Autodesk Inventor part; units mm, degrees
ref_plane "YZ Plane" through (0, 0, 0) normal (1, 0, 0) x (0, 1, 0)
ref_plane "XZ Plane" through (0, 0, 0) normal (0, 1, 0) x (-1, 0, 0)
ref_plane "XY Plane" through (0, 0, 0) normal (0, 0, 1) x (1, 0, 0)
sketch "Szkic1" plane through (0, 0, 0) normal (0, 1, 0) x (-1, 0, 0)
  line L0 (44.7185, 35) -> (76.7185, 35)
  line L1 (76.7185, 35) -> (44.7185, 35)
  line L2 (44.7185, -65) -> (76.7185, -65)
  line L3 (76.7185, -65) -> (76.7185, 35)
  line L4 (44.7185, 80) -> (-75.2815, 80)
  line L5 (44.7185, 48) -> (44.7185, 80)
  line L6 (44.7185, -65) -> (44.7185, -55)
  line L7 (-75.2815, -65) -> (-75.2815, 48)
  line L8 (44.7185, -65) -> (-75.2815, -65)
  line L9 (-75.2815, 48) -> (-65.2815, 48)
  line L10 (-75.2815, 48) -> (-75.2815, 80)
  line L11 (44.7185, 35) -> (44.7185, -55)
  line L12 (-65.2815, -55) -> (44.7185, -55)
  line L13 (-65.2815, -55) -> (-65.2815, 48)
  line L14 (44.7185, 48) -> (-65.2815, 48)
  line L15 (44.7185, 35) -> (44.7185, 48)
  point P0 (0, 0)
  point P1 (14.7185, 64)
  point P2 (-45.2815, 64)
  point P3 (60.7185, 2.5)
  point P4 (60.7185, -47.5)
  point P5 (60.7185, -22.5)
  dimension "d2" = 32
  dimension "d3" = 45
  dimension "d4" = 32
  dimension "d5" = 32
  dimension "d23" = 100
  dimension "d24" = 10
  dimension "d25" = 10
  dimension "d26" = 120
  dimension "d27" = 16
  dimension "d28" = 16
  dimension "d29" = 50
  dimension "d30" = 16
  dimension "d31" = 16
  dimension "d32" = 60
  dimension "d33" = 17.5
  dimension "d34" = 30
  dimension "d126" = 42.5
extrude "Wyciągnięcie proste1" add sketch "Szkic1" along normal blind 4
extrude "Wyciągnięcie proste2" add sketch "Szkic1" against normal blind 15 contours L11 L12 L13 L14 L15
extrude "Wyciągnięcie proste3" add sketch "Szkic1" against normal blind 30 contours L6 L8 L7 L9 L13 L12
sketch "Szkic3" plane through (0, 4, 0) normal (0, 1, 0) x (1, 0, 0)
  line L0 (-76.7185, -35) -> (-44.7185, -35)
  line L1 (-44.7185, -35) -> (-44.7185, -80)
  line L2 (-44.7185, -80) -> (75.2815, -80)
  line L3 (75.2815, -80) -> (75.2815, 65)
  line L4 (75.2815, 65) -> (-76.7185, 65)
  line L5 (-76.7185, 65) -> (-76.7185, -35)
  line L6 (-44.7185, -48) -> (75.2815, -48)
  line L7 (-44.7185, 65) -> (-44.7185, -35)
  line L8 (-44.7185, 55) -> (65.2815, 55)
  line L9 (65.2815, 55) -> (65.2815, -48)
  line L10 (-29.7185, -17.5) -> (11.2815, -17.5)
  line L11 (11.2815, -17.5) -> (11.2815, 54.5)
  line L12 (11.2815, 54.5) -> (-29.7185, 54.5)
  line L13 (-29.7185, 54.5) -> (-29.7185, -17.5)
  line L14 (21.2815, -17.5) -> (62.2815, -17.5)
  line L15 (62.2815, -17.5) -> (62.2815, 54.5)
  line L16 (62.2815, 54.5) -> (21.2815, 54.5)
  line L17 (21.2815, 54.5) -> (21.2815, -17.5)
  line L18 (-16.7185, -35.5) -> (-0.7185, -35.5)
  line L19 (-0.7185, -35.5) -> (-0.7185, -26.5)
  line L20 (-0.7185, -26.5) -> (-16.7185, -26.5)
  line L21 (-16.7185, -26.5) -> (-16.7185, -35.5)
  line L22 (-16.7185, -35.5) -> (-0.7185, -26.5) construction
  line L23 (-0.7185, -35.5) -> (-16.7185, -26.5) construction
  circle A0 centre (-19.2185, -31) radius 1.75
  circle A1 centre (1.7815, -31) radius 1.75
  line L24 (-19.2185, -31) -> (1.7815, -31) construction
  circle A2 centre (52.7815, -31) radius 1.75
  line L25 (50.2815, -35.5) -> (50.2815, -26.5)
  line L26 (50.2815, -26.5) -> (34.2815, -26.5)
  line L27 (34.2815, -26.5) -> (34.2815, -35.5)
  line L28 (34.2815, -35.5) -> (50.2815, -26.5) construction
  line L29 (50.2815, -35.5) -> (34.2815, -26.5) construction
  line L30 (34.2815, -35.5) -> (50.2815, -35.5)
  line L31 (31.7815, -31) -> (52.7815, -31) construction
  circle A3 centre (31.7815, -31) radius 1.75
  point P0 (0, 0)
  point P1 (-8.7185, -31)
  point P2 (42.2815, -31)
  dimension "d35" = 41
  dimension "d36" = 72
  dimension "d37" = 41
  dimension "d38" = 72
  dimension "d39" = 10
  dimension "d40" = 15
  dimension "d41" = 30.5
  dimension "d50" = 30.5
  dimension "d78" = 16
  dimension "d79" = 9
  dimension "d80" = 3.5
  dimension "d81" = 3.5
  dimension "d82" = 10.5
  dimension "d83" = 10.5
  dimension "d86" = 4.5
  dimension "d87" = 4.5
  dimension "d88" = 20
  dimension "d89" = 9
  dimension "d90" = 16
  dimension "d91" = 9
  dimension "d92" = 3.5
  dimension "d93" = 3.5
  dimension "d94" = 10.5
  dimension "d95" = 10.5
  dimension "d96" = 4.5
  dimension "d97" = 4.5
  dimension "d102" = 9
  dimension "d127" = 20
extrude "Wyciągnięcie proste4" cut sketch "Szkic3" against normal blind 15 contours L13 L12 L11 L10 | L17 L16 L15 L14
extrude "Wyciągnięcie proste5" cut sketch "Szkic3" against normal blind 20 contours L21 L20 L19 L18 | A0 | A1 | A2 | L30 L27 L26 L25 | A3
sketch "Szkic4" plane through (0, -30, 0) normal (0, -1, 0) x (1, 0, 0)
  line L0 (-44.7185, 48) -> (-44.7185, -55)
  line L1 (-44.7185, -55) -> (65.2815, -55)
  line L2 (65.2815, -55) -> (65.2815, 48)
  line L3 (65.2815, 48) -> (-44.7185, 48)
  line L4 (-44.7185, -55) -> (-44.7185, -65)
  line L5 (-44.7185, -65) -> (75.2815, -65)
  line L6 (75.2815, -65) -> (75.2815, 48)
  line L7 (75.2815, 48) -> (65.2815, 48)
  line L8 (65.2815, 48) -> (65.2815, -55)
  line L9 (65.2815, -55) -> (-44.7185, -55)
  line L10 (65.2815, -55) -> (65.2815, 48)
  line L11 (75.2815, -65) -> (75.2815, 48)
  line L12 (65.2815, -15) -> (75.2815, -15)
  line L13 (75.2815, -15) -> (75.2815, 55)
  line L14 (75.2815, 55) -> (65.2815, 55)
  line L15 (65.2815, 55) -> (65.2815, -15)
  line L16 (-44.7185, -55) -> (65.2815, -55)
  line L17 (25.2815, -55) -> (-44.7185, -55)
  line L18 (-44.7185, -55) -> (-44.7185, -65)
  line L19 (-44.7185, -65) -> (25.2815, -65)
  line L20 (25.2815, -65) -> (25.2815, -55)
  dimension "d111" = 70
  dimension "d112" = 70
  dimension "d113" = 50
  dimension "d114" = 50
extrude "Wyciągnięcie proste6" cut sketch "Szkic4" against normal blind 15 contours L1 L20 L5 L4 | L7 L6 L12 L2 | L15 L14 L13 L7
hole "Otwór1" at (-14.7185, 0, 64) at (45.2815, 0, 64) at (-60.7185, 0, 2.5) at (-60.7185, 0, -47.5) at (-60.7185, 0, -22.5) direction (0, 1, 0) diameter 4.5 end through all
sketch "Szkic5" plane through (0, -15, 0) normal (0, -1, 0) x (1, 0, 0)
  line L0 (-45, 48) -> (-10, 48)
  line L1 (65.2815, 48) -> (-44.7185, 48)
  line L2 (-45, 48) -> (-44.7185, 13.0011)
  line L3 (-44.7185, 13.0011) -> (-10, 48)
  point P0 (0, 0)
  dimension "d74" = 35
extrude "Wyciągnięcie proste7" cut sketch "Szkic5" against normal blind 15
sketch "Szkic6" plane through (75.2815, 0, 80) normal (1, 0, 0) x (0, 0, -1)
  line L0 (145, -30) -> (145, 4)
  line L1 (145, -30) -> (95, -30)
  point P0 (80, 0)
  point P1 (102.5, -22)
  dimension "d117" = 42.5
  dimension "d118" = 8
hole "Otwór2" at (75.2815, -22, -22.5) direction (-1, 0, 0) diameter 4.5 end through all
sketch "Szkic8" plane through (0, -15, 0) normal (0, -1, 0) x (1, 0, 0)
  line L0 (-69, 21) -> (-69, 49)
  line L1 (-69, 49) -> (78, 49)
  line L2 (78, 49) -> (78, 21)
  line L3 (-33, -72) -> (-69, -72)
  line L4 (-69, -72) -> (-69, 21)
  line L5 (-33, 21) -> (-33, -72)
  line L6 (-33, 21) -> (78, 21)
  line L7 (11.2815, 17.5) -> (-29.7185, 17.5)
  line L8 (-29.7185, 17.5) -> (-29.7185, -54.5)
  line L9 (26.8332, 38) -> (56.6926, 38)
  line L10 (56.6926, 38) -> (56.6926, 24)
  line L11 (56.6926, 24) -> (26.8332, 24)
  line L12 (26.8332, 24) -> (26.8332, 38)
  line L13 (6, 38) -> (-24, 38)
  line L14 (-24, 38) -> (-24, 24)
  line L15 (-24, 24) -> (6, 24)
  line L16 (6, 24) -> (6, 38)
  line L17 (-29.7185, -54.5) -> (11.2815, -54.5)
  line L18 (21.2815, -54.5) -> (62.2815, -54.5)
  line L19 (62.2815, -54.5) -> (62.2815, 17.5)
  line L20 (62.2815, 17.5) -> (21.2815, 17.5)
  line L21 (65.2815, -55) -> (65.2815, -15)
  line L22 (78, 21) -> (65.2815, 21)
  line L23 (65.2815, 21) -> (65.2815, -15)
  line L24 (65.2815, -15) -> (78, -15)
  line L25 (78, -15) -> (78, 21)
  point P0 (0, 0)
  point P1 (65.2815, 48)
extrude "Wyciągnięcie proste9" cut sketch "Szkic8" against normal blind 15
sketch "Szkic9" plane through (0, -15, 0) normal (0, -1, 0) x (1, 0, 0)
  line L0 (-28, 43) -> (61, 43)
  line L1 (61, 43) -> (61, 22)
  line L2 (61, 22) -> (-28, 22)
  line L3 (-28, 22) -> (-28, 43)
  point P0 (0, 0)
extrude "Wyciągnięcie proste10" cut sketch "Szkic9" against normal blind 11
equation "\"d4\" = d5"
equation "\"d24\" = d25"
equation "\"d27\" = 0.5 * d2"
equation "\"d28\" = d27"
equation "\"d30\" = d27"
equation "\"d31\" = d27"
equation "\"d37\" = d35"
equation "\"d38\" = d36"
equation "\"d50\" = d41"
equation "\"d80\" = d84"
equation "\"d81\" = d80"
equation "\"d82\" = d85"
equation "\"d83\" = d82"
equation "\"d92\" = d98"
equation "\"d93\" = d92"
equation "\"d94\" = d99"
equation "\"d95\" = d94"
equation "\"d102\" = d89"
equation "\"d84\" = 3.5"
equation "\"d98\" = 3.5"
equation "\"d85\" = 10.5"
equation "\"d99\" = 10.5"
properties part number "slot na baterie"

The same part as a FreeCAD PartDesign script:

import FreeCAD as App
import Part
import Sketcher
Q = App.Units.Quantity


def add_polygon(sketch, points):
    """Adds a closed chain of lines whose ends are joined by coincident constraints."""
    first, n = sketch.GeometryCount, len(points)
    for a, b in zip(points, points[1:] + points[:1]):
        sketch.addGeometry(Part.LineSegment(App.Vector(*a, 0), App.Vector(*b, 0)), False)
    for i in range(n):
        sketch.addConstraint(Sketcher.Constraint("Coincident", first + i, 2, first + (i + 1) % n, 1))

doc = App.newDocument("Part")
body = doc.addObject("PartDesign::Body", "Body")

# Sketch on XZ plane
sketch1 = body.newObject("Sketcher::SketchObject", "Sketch")
sketch1.AttachmentSupport = (doc.getObject("XZ_Plane"), [""])
sketch1.MapMode = "FlatFace"
add_polygon(sketch1, [(-77, 35), (-45, 35), (-45, 80), (75, 80), (75, -65), (-77, -65)])  # lines 0-5
sketch1.addConstraint(Sketcher.Constraint("Horizontal", 0))
sketch1.addConstraint(Sketcher.Constraint("Vertical", 1))
sketch1.addConstraint(Sketcher.Constraint("Horizontal", 2))
sketch1.addConstraint(Sketcher.Constraint("Vertical", 3))
sketch1.addConstraint(Sketcher.Constraint("Horizontal", 4))
sketch1.addConstraint(Sketcher.Constraint("Vertical", 5))
sketch1.addConstraint(Sketcher.Constraint("DistanceX", 0, 1, 0, 2, Q("32 mm")))
sketch1.addConstraint(Sketcher.Constraint("DistanceX", 2, 1, 2, 2, Q("120 mm")))
sketch1.addConstraint(Sketcher.Constraint("DistanceY", 1, 1, 1, 2, Q("45 mm")))
sketch1.addConstraint(Sketcher.Constraint("DistanceY", 5, 1, 5, 2, Q("100 mm")))
sketch1.addConstraint(Sketcher.Constraint("DistanceY", -1, 1, 0, 2, Q("35 mm")))
sketch1.addConstraint(Sketcher.Constraint("DistanceX", 0, 2, -1, 1, Q("44.7185 mm")))
pad1 = body.newObject("PartDesign::Pad", "Pad")
pad1.Profile = sketch1
pad1.Length = 4
pad1.Reversed = True

# Sketch on XZ plane
sketch2 = body.newObject("Sketcher::SketchObject", "Sketch001")
sketch2.AttachmentSupport = (doc.getObject("XZ_Plane"), [""])
sketch2.MapMode = "FlatFace"
add_polygon(sketch2, [(-45, -55), (-45, 48), (65, 48), (65, -55)])  # lines 0-3
sketch2.addConstraint(Sketcher.Constraint("Vertical", 0))
sketch2.addConstraint(Sketcher.Constraint("Horizontal", 1))
sketch2.addConstraint(Sketcher.Constraint("Vertical", 2))
sketch2.addConstraint(Sketcher.Constraint("Horizontal", 3))
sketch2.addConstraint(Sketcher.Constraint("DistanceX", 1, 1, 1, 2, Q("110 mm")))
sketch2.addConstraint(Sketcher.Constraint("DistanceY", 0, 1, 0, 2, Q("103 mm")))
sketch2.addConstraint(Sketcher.Constraint("DistanceY", -1, 1, 0, 2, Q("48 mm")))
sketch2.addConstraint(Sketcher.Constraint("DistanceX", 0, 2, -1, 1, Q("44.7185 mm")))
pad2 = body.newObject("PartDesign::Pad", "Pad001")
pad2.Profile = sketch2
pad2.Length = 15

# Sketch on XZ plane
sketch3 = body.newObject("Sketcher::SketchObject", "Sketch002")
sketch3.AttachmentSupport = (doc.getObject("XZ_Plane"), [""])
sketch3.MapMode = "FlatFace"
add_polygon(sketch3, [(-45, -65), (-45, -55), (65, -55), (65, 48), (75, 48), (75, -65)])  # lines 0-5
sketch3.addConstraint(Sketcher.Constraint("Vertical", 0))
sketch3.addConstraint(Sketcher.Constraint("Horizontal", 1))
sketch3.addConstraint(Sketcher.Constraint("Vertical", 2))
sketch3.addConstraint(Sketcher.Constraint("Horizontal", 3))
sketch3.addConstraint(Sketcher.Constraint("Vertical", 4))
sketch3.addConstraint(Sketcher.Constraint("Horizontal", 5))
sketch3.addConstraint(Sketcher.Constraint("Equal", 3, 0))
sketch3.addConstraint(Sketcher.Constraint("DistanceX", 3, 1, 3, 2, Q("10 mm")))
sketch3.addConstraint(Sketcher.Constraint("DistanceX", 5, 2, 5, 1, Q("120 mm")))
sketch3.addConstraint(Sketcher.Constraint("DistanceY", 2, 1, 2, 2, Q("103 mm")))
sketch3.addConstraint(Sketcher.Constraint("DistanceY", 0, 2, -1, 1, Q("55 mm")))
sketch3.addConstraint(Sketcher.Constraint("DistanceX", 0, 2, -1, 1, Q("44.7185 mm")))
pad3 = body.newObject("PartDesign::Pad", "Pad002")
pad3.Profile = sketch3
pad3.Length = 30

# Sketch on XZ plane
sketch4 = body.newObject("Sketcher::SketchObject", "Sketch003")
sketch4.AttachmentSupport = (doc.getObject("XZ_Plane"), [""])
sketch4.MapMode = "FlatFace"
sketch4.AttachmentOffset = App.Placement(App.Vector(0, 0, -4), App.Rotation())
add_polygon(sketch4, [(-30, -54), (-30, 18), (11, 18), (11, -54)])  # lines 0-3
add_polygon(sketch4, [(21, -54), (21, 18), (62, 18), (62, -54)])  # lines 4-7
sketch4.addConstraint(Sketcher.Constraint("Vertical", 0))
sketch4.addConstraint(Sketcher.Constraint("Horizontal", 1))
sketch4.addConstraint(Sketcher.Constraint("Vertical", 2))
sketch4.addConstraint(Sketcher.Constraint("Horizontal", 3))
sketch4.addConstraint(Sketcher.Constraint("Vertical", 4))
sketch4.addConstraint(Sketcher.Constraint("Horizontal", 5))
sketch4.addConstraint(Sketcher.Constraint("Vertical", 6))
sketch4.addConstraint(Sketcher.Constraint("Horizontal", 7))
sketch4.addConstraint(Sketcher.Constraint("Horizontal", 1, 2, 4, 2))
sketch4.addConstraint(Sketcher.Constraint("Horizontal", 3, 2, 6, 2))
sketch4.addConstraint(Sketcher.Constraint("Equal", 3, 5))
sketch4.addConstraint(Sketcher.Constraint("DistanceX", 1, 1, 1, 2, Q("41 mm")))
sketch4.addConstraint(Sketcher.Constraint("DistanceY", 0, 1, 0, 2, Q("72 mm")))
sketch4.addConstraint(Sketcher.Constraint("DistanceX", 1, 2, 4, 2, Q("10 mm")))
sketch4.addConstraint(Sketcher.Constraint("DistanceY", -1, 1, 0, 2, Q("17.5 mm")))
sketch4.addConstraint(Sketcher.Constraint("DistanceX", 0, 2, -1, 1, Q("29.7185 mm")))
pocket1 = body.newObject("PartDesign::Pocket", "Pocket")
pocket1.Profile = sketch4
pocket1.Length = 15
pocket1.Reversed = True

# Sketch on XZ plane
sketch5 = body.newObject("Sketcher::SketchObject", "Sketch004")
sketch5.AttachmentSupport = (doc.getObject("XZ_Plane"), [""])
sketch5.MapMode = "FlatFace"
sketch5.AttachmentOffset = App.Placement(App.Vector(0, 0, -4), App.Rotation())
add_polygon(sketch5, [(-16.7, 26.5), (-16.7, 35.5), (-0.7, 35.5), (-0.7, 26.5)])  # lines 0-3
sketch5.addGeometry(Part.Circle(App.Vector(-19.2, 31, 0), App.Vector(0, 0, 1), 1.8), False)  # 4
sketch5.addGeometry(Part.Circle(App.Vector(1.8, 31, 0), App.Vector(0, 0, 1), 1.8), False)  # 5
sketch5.addGeometry(Part.Circle(App.Vector(52.8, 31, 0), App.Vector(0, 0, 1), 1.8), False)  # 6
add_polygon(sketch5, [(34.3, 35.5), (50.3, 35.5), (50.3, 26.5), (34.3, 26.5)])  # lines 7-10
sketch5.addGeometry(Part.Circle(App.Vector(31.8, 31, 0), App.Vector(0, 0, 1), 1.8), False)  # 11
sketch5.addConstraint(Sketcher.Constraint("Vertical", 0))
sketch5.addConstraint(Sketcher.Constraint("Horizontal", 1))
sketch5.addConstraint(Sketcher.Constraint("Vertical", 2))
sketch5.addConstraint(Sketcher.Constraint("Horizontal", 3))
sketch5.addConstraint(Sketcher.Constraint("Horizontal", 7))
sketch5.addConstraint(Sketcher.Constraint("Vertical", 8))
sketch5.addConstraint(Sketcher.Constraint("Horizontal", 9))
sketch5.addConstraint(Sketcher.Constraint("Vertical", 10))
sketch5.addConstraint(Sketcher.Constraint("Equal", 4, 5))
sketch5.addConstraint(Sketcher.Constraint("Equal", 5, 6))
sketch5.addConstraint(Sketcher.Constraint("Equal", 6, 11))
sketch5.addConstraint(Sketcher.Constraint("Horizontal", 4, 3, 5, 3))
sketch5.addConstraint(Sketcher.Constraint("Horizontal", 5, 3, 6, 3))
sketch5.addConstraint(Sketcher.Constraint("Horizontal", 6, 3, 11, 3))
sketch5.addConstraint(Sketcher.Constraint("Horizontal", 1, 2, 7, 2))
sketch5.addConstraint(Sketcher.Constraint("Horizontal", 3, 2, 8, 2))
sketch5.addConstraint(Sketcher.Constraint("Equal", 3, 7))
sketch5.addConstraint(Sketcher.Constraint("Diameter", 4, Q("3.5 mm")))
sketch5.addConstraint(Sketcher.Constraint("DistanceX", 1, 1, 1, 2, Q("16 mm")))
sketch5.addConstraint(Sketcher.Constraint("DistanceY", 0, 1, 0, 2, Q("9 mm")))
sketch5.addConstraint(Sketcher.Constraint("DistanceX", 4, 3, 6, 3, Q("72 mm")))
sketch5.addConstraint(Sketcher.Constraint("DistanceY", 4, 3, 0, 2, Q("4.5 mm")))
sketch5.addConstraint(Sketcher.Constraint("DistanceY", -1, 1, 4, 3, Q("31 mm")))
sketch5.addConstraint(Sketcher.Constraint("DistanceX", 4, 3, 5, 3, Q("21 mm")))
sketch5.addConstraint(Sketcher.Constraint("DistanceX", 11, 3, 6, 3, Q("21 mm")))
sketch5.addConstraint(Sketcher.Constraint("DistanceX", 1, 2, 7, 2, Q("51 mm")))
sketch5.addConstraint(Sketcher.Constraint("DistanceX", 4, 3, 0, 2, Q("2.5 mm")))
sketch5.addConstraint(Sketcher.Constraint("DistanceX", 4, 3, -1, 1, Q("19.2185 mm")))
pocket2 = body.newObject("PartDesign::Pocket", "Pocket001")
pocket2.Profile = sketch5
pocket2.Length = 20
pocket2.Reversed = True

# Sketch on XZ plane
sketch6 = body.newObject("Sketcher::SketchObject", "Sketch005")
sketch6.AttachmentSupport = (doc.getObject("XZ_Plane"), [""])
sketch6.MapMode = "FlatFace"
sketch6.AttachmentOffset = App.Placement(App.Vector(0, 0, 30), App.Rotation())
add_polygon(sketch6, [(25, -55), (-45, -55), (-45, -65), (25, -65)])  # lines 0-3
add_polygon(sketch6, [(75, -15), (75, 55), (65, 55), (65, -15)])  # lines 4-7
sketch6.addConstraint(Sketcher.Constraint("Horizontal", 0))
sketch6.addConstraint(Sketcher.Constraint("Vertical", 1))
sketch6.addConstraint(Sketcher.Constraint("Horizontal", 2))
sketch6.addConstraint(Sketcher.Constraint("Vertical", 3))
sketch6.addConstraint(Sketcher.Constraint("Vertical", 4))
sketch6.addConstraint(Sketcher.Constraint("Horizontal", 5))
sketch6.addConstraint(Sketcher.Constraint("Vertical", 6))
sketch6.addConstraint(Sketcher.Constraint("Horizontal", 7))
sketch6.addConstraint(Sketcher.Constraint("Equal", 7, 1))
sketch6.addConstraint(Sketcher.Constraint("Equal", 2, 4))
sketch6.addConstraint(Sketcher.Constraint("DistanceX", 0, 2, 0, 1, Q("70 mm")))
sketch6.addConstraint(Sketcher.Constraint("DistanceX", 3, 2, 4, 2, Q("50 mm")))
sketch6.addConstraint(Sketcher.Constraint("DistanceY", 2, 2, 6, 2, Q("50 mm")))
sketch6.addConstraint(Sketcher.Constraint("DistanceX", 5, 2, 5, 1, Q("10 mm")))
sketch6.addConstraint(Sketcher.Constraint("DistanceY", 0, 2, -1, 1, Q("55 mm")))
sketch6.addConstraint(Sketcher.Constraint("DistanceX", 0, 2, -1, 1, Q("44.7185 mm")))
pocket3 = body.newObject("PartDesign::Pocket", "Pocket002")
pocket3.Profile = sketch6
pocket3.Length = 15

# Sketch on XZ plane
sketch7 = body.newObject("Sketcher::SketchObject", "Sketch006")
sketch7.AttachmentSupport = (doc.getObject("XZ_Plane"), [""])
sketch7.MapMode = "FlatFace"
sketch7.addGeometry(Part.Circle(App.Vector(-14.7, 64, 0), App.Vector(0, 0, 1), 2.2), False)
sketch7.addGeometry(Part.Circle(App.Vector(45.3, 64, 0), App.Vector(0, 0, 1), 2.2), False)
sketch7.addGeometry(Part.Circle(App.Vector(-60.7, 2.5, 0), App.Vector(0, 0, 1), 2.2), False)
sketch7.addGeometry(Part.Circle(App.Vector(-60.7, -47.5, 0), App.Vector(0, 0, 1), 2.2), False)
sketch7.addGeometry(Part.Circle(App.Vector(-60.7, -22.5, 0), App.Vector(0, 0, 1), 2.2), False)
sketch7.addConstraint(Sketcher.Constraint("Equal", 0, 1))
sketch7.addConstraint(Sketcher.Constraint("Equal", 1, 2))
sketch7.addConstraint(Sketcher.Constraint("Equal", 2, 3))
sketch7.addConstraint(Sketcher.Constraint("Equal", 3, 4))
sketch7.addConstraint(Sketcher.Constraint("Horizontal", 0, 3, 1, 3))
sketch7.addConstraint(Sketcher.Constraint("Vertical", 2, 3, 3, 3))
sketch7.addConstraint(Sketcher.Constraint("Vertical", 3, 3, 4, 3))
sketch7.addConstraint(Sketcher.Constraint("Diameter", 0, Q("4.5 mm")))
sketch7.addConstraint(Sketcher.Constraint("DistanceY", -1, 1, 0, 3, Q("64 mm")))
sketch7.addConstraint(Sketcher.Constraint("DistanceX", 0, 3, 1, 3, Q("60 mm")))
sketch7.addConstraint(Sketcher.Constraint("DistanceX", 2, 3, 0, 3, Q("46 mm")))
sketch7.addConstraint(Sketcher.Constraint("DistanceY", 3, 3, 2, 3, Q("50 mm")))
sketch7.addConstraint(Sketcher.Constraint("DistanceY", 4, 3, 2, 3, Q("25 mm")))
sketch7.addConstraint(Sketcher.Constraint("DistanceY", -1, 1, 2, 3, Q("2.5 mm")))
sketch7.addConstraint(Sketcher.Constraint("DistanceX", 0, 3, -1, 1, Q("14.7185 mm")))
doc.recompute()
hole = body.newObject("PartDesign::Hole", "Hole")
hole.Profile = sketch7
hole.ThreadType = "None"
hole.Diameter = 4.5
hole.DepthType = "ThroughAll"

# Sketch on XZ plane
sketch8 = body.newObject("Sketcher::SketchObject", "Sketch007")
sketch8.AttachmentSupport = (doc.getObject("XZ_Plane"), [""])
sketch8.MapMode = "FlatFace"
sketch8.AttachmentOffset = App.Placement(App.Vector(0, 0, 15), App.Rotation())
add_polygon(sketch8, [(-10, 48), (-45, 48), (-45, 13)])  # lines 0-2
sketch8.addConstraint(Sketcher.Constraint("Horizontal", 0))
sketch8.addConstraint(Sketcher.Constraint("DistanceX", 0, 2, 0, 1, Q("35 mm")))
sketch8.addConstraint(Sketcher.Constraint("Distance", 1, Q("35 mm")))
sketch8.addConstraint(Sketcher.Constraint("DistanceX", 0, 2, -1, 1, Q("45 mm")))
sketch8.addConstraint(Sketcher.Constraint("DistanceY", -1, 1, 0, 2, Q("48 mm")))
sketch8.addConstraint(Sketcher.Constraint("Angle", 1, Q("-89.5392 deg")))
pocket4 = body.newObject("PartDesign::Pocket", "Pocket003")
pocket4.Profile = sketch8
pocket4.Length = 15

# Sketch on YZ plane
sketch9 = body.newObject("Sketcher::SketchObject", "Sketch008")
sketch9.AttachmentSupport = (doc.getObject("YZ_Plane"), [""])
sketch9.MapMode = "FlatFace"
sketch9.AttachmentOffset = App.Placement(App.Vector(0, 0, 75.2815), App.Rotation())
sketch9.addGeometry(Part.Circle(App.Vector(-22, -22.5, 0), App.Vector(0, 0, 1), 2.2), False)
sketch9.addConstraint(Sketcher.Constraint("Diameter", 0, Q("4.5 mm")))
sketch9.addConstraint(Sketcher.Constraint("DistanceX", 0, 3, -1, 1, Q("22 mm")))
sketch9.addConstraint(Sketcher.Constraint("DistanceY", 0, 3, -1, 1, Q("22.5 mm")))
doc.recompute()
hole2 = body.newObject("PartDesign::Hole", "Hole001")
hole2.Profile = sketch9
hole2.ThreadType = "None"
hole2.Diameter = 4.5
hole2.DepthType = "ThroughAll"

# Sketch on XZ plane
sketch10 = body.newObject("Sketcher::SketchObject", "Sketch009")
sketch10.AttachmentSupport = (doc.getObject("XZ_Plane"), [""])
sketch10.MapMode = "FlatFace"
sketch10.AttachmentOffset = App.Placement(App.Vector(0, 0, 15), App.Rotation())
add_polygon(sketch10, [(-69, 49), (-69, -72), (-33, -72), (-33, 21), (65, 21), (65, -15), (78, -15), (78, 49)])  # lines 0-7
add_polygon(sketch10, [(-24, 38), (6, 38), (6, 24), (-24, 24)])  # lines 8-11
add_polygon(sketch10, [(27, 24), (27, 38), (57, 38), (57, 24)])  # lines 12-15
sketch10.addConstraint(Sketcher.Constraint("Vertical", 0))
sketch10.addConstraint(Sketcher.Constraint("Horizontal", 1))
sketch10.addConstraint(Sketcher.Constraint("Vertical", 2))
sketch10.addConstraint(Sketcher.Constraint("Horizontal", 3))
sketch10.addConstraint(Sketcher.Constraint("Vertical", 4))
sketch10.addConstraint(Sketcher.Constraint("Horizontal", 5))
sketch10.addConstraint(Sketcher.Constraint("Vertical", 6))
sketch10.addConstraint(Sketcher.Constraint("Horizontal", 7))
sketch10.addConstraint(Sketcher.Constraint("Horizontal", 8))
sketch10.addConstraint(Sketcher.Constraint("Vertical", 9))
sketch10.addConstraint(Sketcher.Constraint("Horizontal", 10))
sketch10.addConstraint(Sketcher.Constraint("Vertical", 11))
sketch10.addConstraint(Sketcher.Constraint("Vertical", 12))
sketch10.addConstraint(Sketcher.Constraint("Horizontal", 13))
sketch10.addConstraint(Sketcher.Constraint("Vertical", 14))
sketch10.addConstraint(Sketcher.Constraint("Horizontal", 15))
sketch10.addConstraint(Sketcher.Constraint("Horizontal", 11, 2, 12, 2))
sketch10.addConstraint(Sketcher.Constraint("Horizontal", 10, 2, 14, 2))
sketch10.addConstraint(Sketcher.Constraint("Equal", 1, 4))
sketch10.addConstraint(Sketcher.Constraint("DistanceX", 1, 1, 1, 2, Q("36 mm")))
sketch10.addConstraint(Sketcher.Constraint("DistanceX", 7, 2, 7, 1, Q("147 mm")))
sketch10.addConstraint(Sketcher.Constraint("DistanceX", 8, 1, 8, 2, Q("30 mm")))
sketch10.addConstraint(Sketcher.Constraint("DistanceY", 0, 2, 0, 1, Q("121 mm")))
sketch10.addConstraint(Sketcher.Constraint("DistanceY", 2, 1, 2, 2, Q("93 mm")))
sketch10.addConstraint(Sketcher.Constraint("DistanceY", 9, 2, 9, 1, Q("14 mm")))
sketch10.addConstraint(Sketcher.Constraint("DistanceX", 0, 2, -1, 1, Q("69 mm")))
sketch10.addConstraint(Sketcher.Constraint("DistanceY", 0, 2, -1, 1, Q("72 mm")))
sketch10.addConstraint(Sketcher.Constraint("DistanceX", -1, 1, 8, 2, Q("6 mm")))
sketch10.addConstraint(Sketcher.Constraint("DistanceY", -1, 1, 8, 2, Q("38 mm")))
sketch10.addConstraint(Sketcher.Constraint("DistanceX", 3, 1, 3, 2, Q("98.2815 mm")))
sketch10.addConstraint(Sketcher.Constraint("DistanceX", 13, 1, 13, 2, Q("29.8594 mm")))
sketch10.addConstraint(Sketcher.Constraint("DistanceX", 13, 2, 3, 2, Q("8.589 mm")))
pocket5 = body.newObject("PartDesign::Pocket", "Pocket004")
pocket5.Profile = sketch10
pocket5.Length = 15

# Sketch on XZ plane
sketch11 = body.newObject("Sketcher::SketchObject", "Sketch010")
sketch11.AttachmentSupport = (doc.getObject("XZ_Plane"), [""])
sketch11.MapMode = "FlatFace"
sketch11.AttachmentOffset = App.Placement(App.Vector(0, 0, 15), App.Rotation())
add_polygon(sketch11, [(61, 43), (-28, 43), (-28, 22), (61, 22)])  # lines 0-3
sketch11.addConstraint(Sketcher.Constraint("Horizontal", 0))
sketch11.addConstraint(Sketcher.Constraint("Vertical", 1))
sketch11.addConstraint(Sketcher.Constraint("Horizontal", 2))
sketch11.addConstraint(Sketcher.Constraint("Vertical", 3))
sketch11.addConstraint(Sketcher.Constraint("DistanceX", 0, 2, 0, 1, Q("89 mm")))
sketch11.addConstraint(Sketcher.Constraint("DistanceY", 1, 2, 1, 1, Q("21 mm")))
sketch11.addConstraint(Sketcher.Constraint("DistanceX", 0, 2, -1, 1, Q("28 mm")))
sketch11.addConstraint(Sketcher.Constraint("DistanceY", -1, 1, 0, 2, Q("43 mm")))
pocket6 = body.newObject("PartDesign::Pocket", "Pocket005")
pocket6.Profile = sketch11
pocket6.Length = 11

doc.recompute()
